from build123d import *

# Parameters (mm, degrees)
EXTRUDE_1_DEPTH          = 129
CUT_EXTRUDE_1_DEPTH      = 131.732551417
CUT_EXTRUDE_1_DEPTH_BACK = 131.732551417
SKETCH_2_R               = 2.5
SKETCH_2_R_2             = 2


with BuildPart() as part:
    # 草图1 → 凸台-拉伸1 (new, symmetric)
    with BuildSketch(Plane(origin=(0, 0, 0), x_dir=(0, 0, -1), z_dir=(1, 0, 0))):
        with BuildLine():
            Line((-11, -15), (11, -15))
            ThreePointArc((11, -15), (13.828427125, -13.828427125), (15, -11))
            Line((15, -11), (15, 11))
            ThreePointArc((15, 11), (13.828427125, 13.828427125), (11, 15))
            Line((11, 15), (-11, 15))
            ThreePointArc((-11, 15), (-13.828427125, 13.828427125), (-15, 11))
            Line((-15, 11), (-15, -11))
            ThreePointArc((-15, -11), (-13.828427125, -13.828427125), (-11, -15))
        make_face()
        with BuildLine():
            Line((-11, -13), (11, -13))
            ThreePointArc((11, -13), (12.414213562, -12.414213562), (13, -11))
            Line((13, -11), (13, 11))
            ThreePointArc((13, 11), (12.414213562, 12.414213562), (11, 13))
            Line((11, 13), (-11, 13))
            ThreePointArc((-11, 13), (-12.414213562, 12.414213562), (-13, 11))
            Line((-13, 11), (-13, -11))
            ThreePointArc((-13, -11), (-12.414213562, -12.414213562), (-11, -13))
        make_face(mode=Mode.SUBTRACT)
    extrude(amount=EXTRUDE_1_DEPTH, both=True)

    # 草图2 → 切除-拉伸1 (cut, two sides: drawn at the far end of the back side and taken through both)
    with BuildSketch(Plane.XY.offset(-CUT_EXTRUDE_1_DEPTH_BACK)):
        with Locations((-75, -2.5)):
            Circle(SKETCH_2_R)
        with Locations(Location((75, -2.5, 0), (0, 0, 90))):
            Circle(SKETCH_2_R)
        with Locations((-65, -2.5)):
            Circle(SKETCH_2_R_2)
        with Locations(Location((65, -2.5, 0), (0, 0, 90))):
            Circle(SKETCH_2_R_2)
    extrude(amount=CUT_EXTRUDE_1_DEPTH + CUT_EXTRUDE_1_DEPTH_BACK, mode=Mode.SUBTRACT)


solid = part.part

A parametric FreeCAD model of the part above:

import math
import FreeCAD as App
import Part
import Sketcher
from FreeCAD import Vector

doc = App.newDocument("Part")
body = doc.addObject("PartDesign::Body", "Body")

# Sketch on YZ plane
sketch1 = body.newObject("Sketcher::SketchObject", "Sketch")
sketch1.AttachmentSupport = (doc.getObject("YZ_Plane"), [""])
sketch1.MapMode = "FlatFace"
sketch1.addGeometry(Part.LineSegment(Vector(-15, 11, 0), Vector(-15, -11, 0)), False)
sketch1.addGeometry(Part.ArcOfCircle(Part.Circle(Vector(-11, -11, 0), Vector(0, 0, 1), 4), math.radians(180), math.radians(270)), False)
sketch1.addGeometry(Part.LineSegment(Vector(-11, -15, 0), Vector(11, -15, 0)), False)
sketch1.addGeometry(Part.ArcOfCircle(Part.Circle(Vector(11, -11, 0), Vector(0, 0, 1), 4), math.radians(-90), math.radians(0)), False)
sketch1.addGeometry(Part.LineSegment(Vector(15, -11, 0), Vector(15, 11, 0)), False)
sketch1.addGeometry(Part.ArcOfCircle(Part.Circle(Vector(11, 11, 0), Vector(0, 0, 1), 4), math.radians(0), math.radians(90)), False)
sketch1.addGeometry(Part.LineSegment(Vector(11, 15, 0), Vector(-11, 15, 0)), False)
sketch1.addGeometry(Part.ArcOfCircle(Part.Circle(Vector(-11, 11, 0), Vector(0, 0, 1), 4), math.radians(90), math.radians(180)), False)
sketch1.addGeometry(Part.LineSegment(Vector(-13, -11, 0), Vector(-13, 11, 0)), False)
sketch1.addGeometry(Part.ArcOfCircle(Part.Circle(Vector(-11, 11, 0), Vector(0, 0, 1), 2), math.radians(90), math.radians(180)), False)
sketch1.addGeometry(Part.LineSegment(Vector(-11, 13, 0), Vector(11, 13, 0)), False)
sketch1.addGeometry(Part.ArcOfCircle(Part.Circle(Vector(11, 11, 0), Vector(0, 0, 1), 2), math.radians(0), math.radians(90)), False)
sketch1.addGeometry(Part.LineSegment(Vector(13, 11, 0), Vector(13, -11, 0)), False)
sketch1.addGeometry(Part.ArcOfCircle(Part.Circle(Vector(11, -11, 0), Vector(0, 0, 1), 2), math.radians(-90), math.radians(0)), False)
sketch1.addGeometry(Part.LineSegment(Vector(11, -13, 0), Vector(-11, -13, 0)), False)
sketch1.addGeometry(Part.ArcOfCircle(Part.Circle(Vector(-11, -11, 0), Vector(0, 0, 1), 2), math.radians(-180), math.radians(-90)), False)
sketch1.addConstraint(Sketcher.Constraint("Tangent", 0, 2, 1, 1))
sketch1.addConstraint(Sketcher.Constraint("Tangent", 1, 2, 2, 1))
sketch1.addConstraint(Sketcher.Constraint("Tangent", 2, 2, 3, 1))
sketch1.addConstraint(Sketcher.Constraint("Tangent", 3, 2, 4, 1))
sketch1.addConstraint(Sketcher.Constraint("Tangent", 4, 2, 5, 1))
sketch1.addConstraint(Sketcher.Constraint("Tangent", 5, 2, 6, 1))
sketch1.addConstraint(Sketcher.Constraint("Tangent", 6, 2, 7, 1))
sketch1.addConstraint(Sketcher.Constraint("Tangent", 7, 2, 0, 1))
sketch1.addConstraint(Sketcher.Constraint("Tangent", 8, 2, 9, 2))
sketch1.addConstraint(Sketcher.Constraint("Tangent", 9, 1, 10, 1))
sketch1.addConstraint(Sketcher.Constraint("Tangent", 10, 2, 11, 2))
sketch1.addConstraint(Sketcher.Constraint("Tangent", 11, 1, 12, 1))
sketch1.addConstraint(Sketcher.Constraint("Tangent", 12, 2, 13, 2))
sketch1.addConstraint(Sketcher.Constraint("Tangent", 13, 1, 14, 1))
sketch1.addConstraint(Sketcher.Constraint("Tangent", 14, 2, 15, 2))
sketch1.addConstraint(Sketcher.Constraint("Tangent", 15, 1, 8, 1))
sketch1.addConstraint(Sketcher.Constraint("Vertical", 0))
sketch1.addConstraint(Sketcher.Constraint("Horizontal", 2))
sketch1.addConstraint(Sketcher.Constraint("Vertical", 4))
sketch1.addConstraint(Sketcher.Constraint("Horizontal", 6))
sketch1.addConstraint(Sketcher.Constraint("Vertical", 8))
sketch1.addConstraint(Sketcher.Constraint("Horizontal", 10))
sketch1.addConstraint(Sketcher.Constraint("Vertical", 12))
sketch1.addConstraint(Sketcher.Constraint("Horizontal", 14))
sketch1.addConstraint(Sketcher.Constraint("Coincident", 9, 3, 7, 3))
sketch1.addConstraint(Sketcher.Constraint("Coincident", 11, 3, 5, 3))
sketch1.addConstraint(Sketcher.Constraint("Coincident", 13, 3, 3, 3))
sketch1.addConstraint(Sketcher.Constraint("Equal", 1, 3))
sketch1.addConstraint(Sketcher.Constraint("Equal", 3, 5))
sketch1.addConstraint(Sketcher.Constraint("Equal", 5, 7))
sketch1.addConstraint(Sketcher.Constraint("Equal", 13, 15))
sketch1.addConstraint(Sketcher.Constraint("Symmetric", 1, 3, 5, 3, -1, 1))
sketch1.addConstraint(Sketcher.Constraint("Equal", 14, 0))
sketch1.addConstraint(Sketcher.Constraint("Radius", 1, 4.0))
sketch1.addConstraint(Sketcher.Constraint("Radius", 9, 2.0))
sketch1.addConstraint(Sketcher.Constraint("DistanceX", 2, 1, 2, 2, 22.0))
pad1 = body.newObject("PartDesign::Pad", "Pad")
pad1.Profile = sketch1
pad1.Length = 258
pad1.Midplane = True

# Sketch on XY plane
sketch2 = body.newObject("Sketcher::SketchObject", "Sketch001")
sketch2.AttachmentSupport = (doc.getObject("XY_Plane"), [""])
sketch2.MapMode = "FlatFace"
sketch2.addGeometry(Part.Circle(Vector(-75, -2.5, 0), Vector(0, 0, 1), 2.5), False)
sketch2.addGeometry(Part.Circle(Vector(75, -2.5, 0), Vector(0, 0, 1), 2.5), False)
sketch2.addGeometry(Part.Circle(Vector(-65, -2.5, 0), Vector(0, 0, 1), 2), False)
sketch2.addGeometry(Part.Circle(Vector(65, -2.5, 0), Vector(0, 0, 1), 2), False)
sketch2.addConstraint(Sketcher.Constraint("Equal", 0, 1))
sketch2.addConstraint(Sketcher.Constraint("Equal", 2, 3))
sketch2.addConstraint(Sketcher.Constraint("Symmetric", 0, 3, 1, 3, -2))
sketch2.addConstraint(Sketcher.Constraint("Symmetric", 2, 3, 3, 3, -2))
sketch2.addConstraint(Sketcher.Constraint("Horizontal", 1, 3, 2, 3))
sketch2.addConstraint(Sketcher.Constraint("Diameter", 0, 5.0))
sketch2.addConstraint(Sketcher.Constraint("Diameter", 2, 4.0))
sketch2.addConstraint(Sketcher.Constraint("DistanceX", 0, 3, -1, 1, 75.0))
sketch2.addConstraint(Sketcher.Constraint("DistanceX", 2, 3, -1, 1, 65.0))
sketch2.addConstraint(Sketcher.Constraint("DistanceY", 0, 3, -1, 1, 2.5))
pocket1 = body.newObject("PartDesign::Pocket", "Pocket")
pocket1.Profile = sketch2
pocket1.Type = "ThroughAll"
pocket1.Midplane = True

doc.recompute()
